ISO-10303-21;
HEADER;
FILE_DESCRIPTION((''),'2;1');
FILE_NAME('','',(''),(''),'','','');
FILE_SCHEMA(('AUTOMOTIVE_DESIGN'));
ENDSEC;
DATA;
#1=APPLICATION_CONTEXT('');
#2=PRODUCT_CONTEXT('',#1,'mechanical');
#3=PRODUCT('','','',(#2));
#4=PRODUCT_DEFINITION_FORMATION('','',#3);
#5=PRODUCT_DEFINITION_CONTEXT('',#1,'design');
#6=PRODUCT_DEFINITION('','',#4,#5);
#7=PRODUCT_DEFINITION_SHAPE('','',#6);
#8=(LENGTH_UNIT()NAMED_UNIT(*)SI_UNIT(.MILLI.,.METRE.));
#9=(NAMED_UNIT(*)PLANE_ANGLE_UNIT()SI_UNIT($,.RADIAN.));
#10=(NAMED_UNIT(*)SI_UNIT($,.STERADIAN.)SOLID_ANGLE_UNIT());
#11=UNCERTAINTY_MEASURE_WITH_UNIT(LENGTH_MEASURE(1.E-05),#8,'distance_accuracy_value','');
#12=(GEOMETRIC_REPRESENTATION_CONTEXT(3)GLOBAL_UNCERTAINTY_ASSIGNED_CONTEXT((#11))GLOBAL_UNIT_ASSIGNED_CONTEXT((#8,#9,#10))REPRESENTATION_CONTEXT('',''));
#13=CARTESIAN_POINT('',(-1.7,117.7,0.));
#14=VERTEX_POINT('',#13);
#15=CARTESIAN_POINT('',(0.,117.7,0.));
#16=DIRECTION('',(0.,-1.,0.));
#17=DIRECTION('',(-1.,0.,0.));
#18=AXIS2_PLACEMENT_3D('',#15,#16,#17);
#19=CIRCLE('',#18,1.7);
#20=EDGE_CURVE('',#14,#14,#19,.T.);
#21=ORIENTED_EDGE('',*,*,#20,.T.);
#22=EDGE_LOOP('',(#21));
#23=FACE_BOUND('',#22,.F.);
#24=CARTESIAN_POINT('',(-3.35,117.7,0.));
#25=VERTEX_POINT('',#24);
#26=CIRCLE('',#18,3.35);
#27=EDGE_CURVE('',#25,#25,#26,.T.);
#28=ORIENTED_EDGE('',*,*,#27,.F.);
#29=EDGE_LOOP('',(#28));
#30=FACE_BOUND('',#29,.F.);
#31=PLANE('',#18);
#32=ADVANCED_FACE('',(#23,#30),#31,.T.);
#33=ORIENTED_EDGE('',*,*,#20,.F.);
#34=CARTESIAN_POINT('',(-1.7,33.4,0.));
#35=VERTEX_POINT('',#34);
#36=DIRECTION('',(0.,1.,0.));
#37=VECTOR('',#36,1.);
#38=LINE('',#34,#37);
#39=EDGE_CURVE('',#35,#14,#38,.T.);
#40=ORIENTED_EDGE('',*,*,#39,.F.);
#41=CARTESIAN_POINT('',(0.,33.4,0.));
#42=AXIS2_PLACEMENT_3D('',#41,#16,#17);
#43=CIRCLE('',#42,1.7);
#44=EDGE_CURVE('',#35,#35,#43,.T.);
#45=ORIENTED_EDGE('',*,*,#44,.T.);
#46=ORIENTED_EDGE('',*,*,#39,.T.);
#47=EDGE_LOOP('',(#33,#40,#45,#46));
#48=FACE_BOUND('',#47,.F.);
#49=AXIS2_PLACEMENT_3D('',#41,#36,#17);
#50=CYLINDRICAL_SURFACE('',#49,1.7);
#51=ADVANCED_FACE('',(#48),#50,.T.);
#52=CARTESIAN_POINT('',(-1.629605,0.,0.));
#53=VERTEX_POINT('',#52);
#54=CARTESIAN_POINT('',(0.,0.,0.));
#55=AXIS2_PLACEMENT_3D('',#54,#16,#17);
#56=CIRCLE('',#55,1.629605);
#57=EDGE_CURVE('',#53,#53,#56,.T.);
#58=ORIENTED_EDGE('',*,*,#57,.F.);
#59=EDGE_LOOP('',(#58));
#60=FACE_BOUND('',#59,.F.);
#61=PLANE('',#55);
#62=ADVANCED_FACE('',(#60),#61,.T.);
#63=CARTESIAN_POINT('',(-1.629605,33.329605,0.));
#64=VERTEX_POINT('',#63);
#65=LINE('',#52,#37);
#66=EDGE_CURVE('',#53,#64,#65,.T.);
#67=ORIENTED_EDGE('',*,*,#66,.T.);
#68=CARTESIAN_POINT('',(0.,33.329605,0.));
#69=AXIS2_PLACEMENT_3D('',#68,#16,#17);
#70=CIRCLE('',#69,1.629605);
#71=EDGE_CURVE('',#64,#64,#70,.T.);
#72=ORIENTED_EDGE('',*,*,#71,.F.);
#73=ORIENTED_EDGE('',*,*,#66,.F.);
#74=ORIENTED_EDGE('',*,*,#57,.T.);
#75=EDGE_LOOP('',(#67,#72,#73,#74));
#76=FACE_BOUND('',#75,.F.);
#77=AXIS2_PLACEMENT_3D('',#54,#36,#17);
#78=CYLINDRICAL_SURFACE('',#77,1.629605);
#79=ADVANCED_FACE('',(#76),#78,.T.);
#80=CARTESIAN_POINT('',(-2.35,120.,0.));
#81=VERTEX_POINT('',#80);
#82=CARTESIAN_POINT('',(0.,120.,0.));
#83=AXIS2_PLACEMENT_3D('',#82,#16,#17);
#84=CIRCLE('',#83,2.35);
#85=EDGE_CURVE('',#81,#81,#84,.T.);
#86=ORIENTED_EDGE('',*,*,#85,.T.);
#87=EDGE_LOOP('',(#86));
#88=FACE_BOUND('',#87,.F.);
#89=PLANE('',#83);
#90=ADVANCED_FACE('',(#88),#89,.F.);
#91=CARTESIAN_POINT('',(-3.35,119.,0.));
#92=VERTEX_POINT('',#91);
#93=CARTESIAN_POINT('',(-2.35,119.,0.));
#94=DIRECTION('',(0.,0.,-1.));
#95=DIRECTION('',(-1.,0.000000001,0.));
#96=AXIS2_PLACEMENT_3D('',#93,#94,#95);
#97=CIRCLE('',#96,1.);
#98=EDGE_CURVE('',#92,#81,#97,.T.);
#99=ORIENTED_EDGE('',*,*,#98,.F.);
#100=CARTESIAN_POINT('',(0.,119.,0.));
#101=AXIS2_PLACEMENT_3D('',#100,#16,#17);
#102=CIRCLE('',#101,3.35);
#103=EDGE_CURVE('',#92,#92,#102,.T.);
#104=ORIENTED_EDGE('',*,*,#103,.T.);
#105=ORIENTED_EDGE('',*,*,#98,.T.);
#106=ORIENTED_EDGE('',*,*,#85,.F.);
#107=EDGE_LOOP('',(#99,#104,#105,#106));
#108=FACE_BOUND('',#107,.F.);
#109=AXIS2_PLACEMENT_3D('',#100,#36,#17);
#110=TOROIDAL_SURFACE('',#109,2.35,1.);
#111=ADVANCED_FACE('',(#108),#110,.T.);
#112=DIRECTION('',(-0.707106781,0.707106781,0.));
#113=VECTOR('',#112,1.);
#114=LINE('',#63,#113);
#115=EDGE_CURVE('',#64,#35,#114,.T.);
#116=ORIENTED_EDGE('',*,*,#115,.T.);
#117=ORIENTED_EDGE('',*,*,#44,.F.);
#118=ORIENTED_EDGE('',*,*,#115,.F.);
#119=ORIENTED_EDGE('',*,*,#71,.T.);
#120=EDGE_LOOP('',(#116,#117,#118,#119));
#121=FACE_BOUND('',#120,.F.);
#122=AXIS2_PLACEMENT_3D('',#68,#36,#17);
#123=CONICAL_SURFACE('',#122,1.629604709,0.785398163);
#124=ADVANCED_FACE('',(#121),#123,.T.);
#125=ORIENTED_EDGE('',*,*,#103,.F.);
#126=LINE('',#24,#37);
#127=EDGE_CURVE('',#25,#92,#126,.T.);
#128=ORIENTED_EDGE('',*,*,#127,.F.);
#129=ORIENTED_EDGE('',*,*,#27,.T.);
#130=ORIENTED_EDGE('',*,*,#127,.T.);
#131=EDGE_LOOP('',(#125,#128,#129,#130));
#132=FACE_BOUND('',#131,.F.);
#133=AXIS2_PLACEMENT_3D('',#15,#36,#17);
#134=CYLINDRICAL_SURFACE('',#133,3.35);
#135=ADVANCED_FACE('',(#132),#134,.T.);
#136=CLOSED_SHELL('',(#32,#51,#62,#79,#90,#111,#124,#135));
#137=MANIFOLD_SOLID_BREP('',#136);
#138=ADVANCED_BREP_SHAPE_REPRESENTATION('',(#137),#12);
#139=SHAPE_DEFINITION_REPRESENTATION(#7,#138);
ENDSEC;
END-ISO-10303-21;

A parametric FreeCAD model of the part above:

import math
import FreeCAD as App
import Part
import Sketcher

V = App.Vector
Q = App.Units.Quantity

doc = App.newDocument("Part")
body = doc.addObject("PartDesign::Body", "Body")

# Sketch on XY plane
sketch1 = body.newObject("Sketcher::SketchObject", "Sketch")
sketch1.AttachmentSupport = (doc.getObject("XY_Plane"), [""])
sketch1.MapMode = "FlatFace"
sketch1.addGeometry([
    Part.LineSegment(V(0, 0, 0), V(0, 120, 0)),  # 0
    Part.LineSegment(V(0, 120, 0), V(-2.35, 120, 0)),  # 1
    Part.ArcOfCircle(Part.Circle(V(-2.35, 119, 0), V(0, 0, 1), 1), math.radians(90), math.radians(180)),  # 2
    Part.LineSegment(V(-3.35, 119, 0), V(-3.35, 117.7, 0)),  # 3
    Part.LineSegment(V(-3.35, 117.7, 0), V(-1.7, 117.7, 0)),  # 4
    Part.LineSegment(V(-1.7, 117.7, 0), V(-1.7, 33.4, 0)),  # 5
    Part.LineSegment(V(-1.7, 33.4, 0), V(-1.63, 33.33, 0)),  # 6
    Part.LineSegment(V(-1.63, 33.33, 0), V(-1.63, 0, 0)),  # 7
    Part.LineSegment(V(-1.63, 0, 0), V(0, 0, 0)),  # 8
], False)
sketch1.addConstraint([
    Sketcher.Constraint("Coincident", 0, 2, 1, 1),
    Sketcher.Constraint("Tangent", 1, 2, 2, 1),
    Sketcher.Constraint("Tangent", 2, 2, 3, 1),
    Sketcher.Constraint("Coincident", 3, 2, 4, 1),
    Sketcher.Constraint("Coincident", 4, 2, 5, 1),
    Sketcher.Constraint("Coincident", 5, 2, 6, 1),
    Sketcher.Constraint("Coincident", 6, 2, 7, 1),
    Sketcher.Constraint("Coincident", 7, 2, 8, 1),
    Sketcher.Constraint("Coincident", 8, 2, 0, 1),
    Sketcher.Constraint("Vertical", 0),
    Sketcher.Constraint("Horizontal", 1),
    Sketcher.Constraint("Vertical", 3),
    Sketcher.Constraint("Horizontal", 4),
    Sketcher.Constraint("Vertical", 5),
    Sketcher.Constraint("Vertical", 7),
    Sketcher.Constraint("Horizontal", 8),
    Sketcher.Constraint("Coincident", 8, 2, -1, 1),
    Sketcher.Constraint("Radius", 2, Q("1 mm")),
    Sketcher.Constraint("DistanceY", 0, 1, 0, 2, Q("120 mm")),
    Sketcher.Constraint("Angle", 6, Q("-45 deg")),
    Sketcher.Constraint("DistanceY", 3, 2, 3, 1, Q("1.3 mm")),
    Sketcher.Constraint("DistanceY", 5, 2, 5, 1, Q("84.3 mm")),
    Sketcher.Constraint("DistanceX", 1, 2, 1, 1, Q("2.35 mm")),
    Sketcher.Constraint("DistanceX", 4, 1, 4, 2, Q("1.65 mm")),
    Sketcher.Constraint("DistanceX", 8, 1, 8, 2, Q("1.629605 mm")),
])
revolution = body.newObject("PartDesign::Revolution", "Revolution")
revolution.Profile = sketch1
revolution.ReferenceAxis = (sketch1, ["V_Axis"])
revolution.Angle = 360

doc.recompute()
